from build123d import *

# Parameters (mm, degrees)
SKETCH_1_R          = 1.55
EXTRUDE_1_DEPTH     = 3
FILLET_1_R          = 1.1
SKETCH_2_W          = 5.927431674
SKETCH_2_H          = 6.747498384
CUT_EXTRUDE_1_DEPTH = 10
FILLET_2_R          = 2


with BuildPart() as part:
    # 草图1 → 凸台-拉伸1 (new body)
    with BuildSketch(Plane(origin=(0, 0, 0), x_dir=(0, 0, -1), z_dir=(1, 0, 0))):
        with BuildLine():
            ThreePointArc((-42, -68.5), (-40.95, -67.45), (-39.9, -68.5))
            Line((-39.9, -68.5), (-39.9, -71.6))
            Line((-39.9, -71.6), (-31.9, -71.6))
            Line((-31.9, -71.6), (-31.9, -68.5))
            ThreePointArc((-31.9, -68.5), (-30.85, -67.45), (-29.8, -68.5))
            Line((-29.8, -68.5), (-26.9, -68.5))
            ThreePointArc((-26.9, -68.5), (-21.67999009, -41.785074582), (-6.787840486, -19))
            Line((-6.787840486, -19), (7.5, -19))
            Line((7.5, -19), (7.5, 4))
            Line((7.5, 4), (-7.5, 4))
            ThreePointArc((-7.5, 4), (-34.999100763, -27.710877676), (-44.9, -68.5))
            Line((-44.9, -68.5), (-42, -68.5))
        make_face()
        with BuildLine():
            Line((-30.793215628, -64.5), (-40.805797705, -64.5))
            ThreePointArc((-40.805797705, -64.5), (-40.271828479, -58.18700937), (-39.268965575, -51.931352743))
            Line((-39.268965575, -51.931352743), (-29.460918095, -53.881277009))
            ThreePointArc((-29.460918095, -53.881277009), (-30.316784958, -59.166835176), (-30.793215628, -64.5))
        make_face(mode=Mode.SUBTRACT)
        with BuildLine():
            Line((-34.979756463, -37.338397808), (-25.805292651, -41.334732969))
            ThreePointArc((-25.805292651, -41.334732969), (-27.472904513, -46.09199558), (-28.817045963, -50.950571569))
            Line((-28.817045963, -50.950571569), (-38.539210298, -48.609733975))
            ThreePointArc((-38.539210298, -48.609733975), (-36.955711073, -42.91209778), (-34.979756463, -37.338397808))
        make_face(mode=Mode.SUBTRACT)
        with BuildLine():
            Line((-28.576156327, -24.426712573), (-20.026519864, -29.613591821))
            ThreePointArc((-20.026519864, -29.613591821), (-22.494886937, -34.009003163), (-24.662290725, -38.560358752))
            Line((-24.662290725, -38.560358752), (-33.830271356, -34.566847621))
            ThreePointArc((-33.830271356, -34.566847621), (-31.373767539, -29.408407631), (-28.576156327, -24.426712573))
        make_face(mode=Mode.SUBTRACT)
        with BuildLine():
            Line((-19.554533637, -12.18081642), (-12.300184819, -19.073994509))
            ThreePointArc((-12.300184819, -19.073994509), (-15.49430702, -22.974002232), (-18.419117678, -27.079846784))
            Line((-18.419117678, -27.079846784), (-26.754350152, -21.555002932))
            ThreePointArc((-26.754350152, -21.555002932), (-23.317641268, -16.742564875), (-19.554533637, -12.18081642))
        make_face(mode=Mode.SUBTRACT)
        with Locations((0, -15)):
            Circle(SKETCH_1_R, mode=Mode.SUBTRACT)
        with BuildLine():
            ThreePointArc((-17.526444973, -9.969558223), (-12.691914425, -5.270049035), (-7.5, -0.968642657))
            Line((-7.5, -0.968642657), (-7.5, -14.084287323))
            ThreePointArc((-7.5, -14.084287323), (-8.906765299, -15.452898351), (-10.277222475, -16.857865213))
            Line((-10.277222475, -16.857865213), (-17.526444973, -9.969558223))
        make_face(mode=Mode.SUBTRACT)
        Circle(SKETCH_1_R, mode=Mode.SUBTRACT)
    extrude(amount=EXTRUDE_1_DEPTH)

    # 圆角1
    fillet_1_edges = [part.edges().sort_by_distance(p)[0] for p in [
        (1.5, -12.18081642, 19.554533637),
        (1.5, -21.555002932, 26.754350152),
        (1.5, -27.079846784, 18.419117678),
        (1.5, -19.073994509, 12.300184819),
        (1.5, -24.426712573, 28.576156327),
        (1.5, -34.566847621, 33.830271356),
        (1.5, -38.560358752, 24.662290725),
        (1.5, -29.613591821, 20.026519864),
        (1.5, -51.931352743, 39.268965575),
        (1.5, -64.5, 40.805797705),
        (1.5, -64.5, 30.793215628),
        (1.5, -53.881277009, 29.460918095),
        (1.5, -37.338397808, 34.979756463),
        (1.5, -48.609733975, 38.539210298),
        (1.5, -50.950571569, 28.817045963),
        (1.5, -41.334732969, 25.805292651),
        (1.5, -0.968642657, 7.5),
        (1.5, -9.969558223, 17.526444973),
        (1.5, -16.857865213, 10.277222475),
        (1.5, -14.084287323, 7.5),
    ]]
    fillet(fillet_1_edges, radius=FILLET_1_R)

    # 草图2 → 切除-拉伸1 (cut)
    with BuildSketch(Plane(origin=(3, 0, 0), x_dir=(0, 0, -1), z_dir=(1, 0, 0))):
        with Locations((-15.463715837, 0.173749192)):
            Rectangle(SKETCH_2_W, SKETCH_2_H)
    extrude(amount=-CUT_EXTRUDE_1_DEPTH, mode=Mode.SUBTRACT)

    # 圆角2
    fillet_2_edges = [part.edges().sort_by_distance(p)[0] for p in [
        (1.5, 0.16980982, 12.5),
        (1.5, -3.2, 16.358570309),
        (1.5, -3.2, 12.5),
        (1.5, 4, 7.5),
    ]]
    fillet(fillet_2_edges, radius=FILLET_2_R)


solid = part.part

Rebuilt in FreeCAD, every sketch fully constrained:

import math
import FreeCAD as App
import Part
import Sketcher


def edges_at(feature, points):
    """Names of the edges that pass closest to the given points."""
    edges = feature.Shape.Edges
    near = lambda p: min(range(len(edges)), key=lambda i: edges[i].distToShape(Part.Vertex(*p))[0])
    return sorted({f"Edge{near(p) + 1}" for p in points})


def add_polygon(sketch, points):
    """Adds a closed chain of lines whose ends are joined by coincident constraints."""
    first, n = sketch.GeometryCount, len(points)
    for a, b in zip(points, points[1:] + points[:1]):
        sketch.addGeometry(Part.LineSegment(App.Vector(*a, 0), App.Vector(*b, 0)), False)
    for i in range(n):
        sketch.addConstraint(Sketcher.Constraint("Coincident", first + i, 2, first + (i + 1) % n, 1))

doc = App.newDocument("Part")
body = doc.addObject("PartDesign::Body", "Body")

sketch1 = body.newObject("Sketcher::SketchObject", "Sketch")
sketch1.AttachmentSupport = (doc.getObject("YZ_Plane"), [""])
sketch1.MapMode = "FlatFace"
sketch1.addGeometry([
    Part.ArcOfCircle(Part.Circle(App.Vector(-68.5, 40.95, 0), App.Vector(0, 0, 1), 1.05), math.radians(-90), math.radians(90)),
    Part.LineSegment(App.Vector(-68.5, 39.9, 0), App.Vector(-71.6, 39.9, 0)),
    Part.LineSegment(App.Vector(-71.6, 39.9, 0), App.Vector(-71.6, 31.9, 0)),
    Part.LineSegment(App.Vector(-71.6, 31.9, 0), App.Vector(-68.5, 31.9, 0)),
    Part.ArcOfCircle(Part.Circle(App.Vector(-68.5, 30.85, 0), App.Vector(0, 0, 1), 1.05), math.radians(-90), math.radians(90)),
    Part.LineSegment(App.Vector(-68.5, 29.8, 0), App.Vector(-68.5, 26.9, 0)),
    Part.ArcOfCircle(Part.Circle(App.Vector(-68.5, -44.070722, 0), App.Vector(0, 0, 1), 70.970722), math.radians(45.77557), math.radians(90)),
    Part.LineSegment(App.Vector(-19, 6.78784, 0), App.Vector(-19, -7.5, 0)),
    Part.LineSegment(App.Vector(-19, -7.5, 0), App.Vector(4, -7.5, 0)),
    Part.LineSegment(App.Vector(4, -7.5, 0), App.Vector(4, 7.5, 0)),
    Part.ArcOfCircle(Part.Circle(App.Vector(-68.5, -44.070722, 0), App.Vector(0, 0, 1), 88.970722), math.radians(35.425015), math.radians(90)),
    Part.LineSegment(App.Vector(-68.5, 44.9, 0), App.Vector(-68.5, 42, 0)),
    Part.ArcOfCircle(Part.Circle(App.Vector(-68.5, -44.070722, 0), App.Vector(0, 0, 1), 74.970722), math.radians(78.755719), math.radians(86.94158)),
    Part.LineSegment(App.Vector(-64.5, 30.793216, 0), App.Vector(-64.5, 40.805798, 0)),
    Part.ArcOfCircle(Part.Circle(App.Vector(-68.5, -44.070722, 0), App.Vector(0, 0, 1), 84.970722), math.radians(78.755719), math.radians(87.301802)),
    Part.LineSegment(App.Vector(-51.931353, 39.268966, 0), App.Vector(-53.881277, 29.460918, 0)),
    Part.ArcOfCircle(Part.Circle(App.Vector(-68.5, -44.070722, 0), App.Vector(0, 0, 1), 84.970722), math.radians(68.485702), math.radians(76.46238)),
    Part.LineSegment(App.Vector(-37.338398, 34.979756, 0), App.Vector(-41.334733, 25.805293, 0)),
    Part.ArcOfCircle(Part.Circle(App.Vector(-68.5, -44.070722, 0), App.Vector(0, 0, 1), 74.970722), math.radians(68.755719), math.radians(76.46238)),
    Part.LineSegment(App.Vector(-50.950572, 28.817046, 0), App.Vector(-48.609734, 38.53921, 0)),
    Part.ArcOfCircle(Part.Circle(App.Vector(-68.5, -44.070722, 0), App.Vector(0, 0, 1), 84.970722), math.radians(58.755719), math.radians(66.46238)),
    Part.LineSegment(App.Vector(-24.426713, 28.576156, 0), App.Vector(-29.613592, 20.02652, 0)),
    Part.ArcOfCircle(Part.Circle(App.Vector(-68.5, -44.070722, 0), App.Vector(0, 0, 1), 74.970722), math.radians(58.755719), math.radians(66.46238)),
    Part.LineSegment(App.Vector(-38.560359, 24.662291, 0), App.Vector(-34.566848, 33.830271, 0)),
    Part.ArcOfCircle(Part.Circle(App.Vector(-68.5, -44.070722, 0), App.Vector(0, 0, 1), 84.970722), math.radians(48.485702), math.radians(56.46238)),
    Part.LineSegment(App.Vector(-12.180816, 19.554534, 0), App.Vector(-19.073995, 12.300185, 0)),
    Part.ArcOfCircle(Part.Circle(App.Vector(-68.5, -44.070722, 0), App.Vector(0, 0, 1), 74.970722), math.radians(48.755719), math.radians(56.46238)),
    Part.LineSegment(App.Vector(-27.079847, 18.419118, 0), App.Vector(-21.555003, 26.75435, 0)),
    Part.Circle(App.Vector(-15, 0, 0), App.Vector(0, 0, 1), 1.55),
    Part.LineSegment(App.Vector(-16.857865, 10.277222, 0), App.Vector(-9.969558, 17.526445, 0)),
    Part.ArcOfCircle(Part.Circle(App.Vector(-68.5, -44.070722, 0), App.Vector(0, 0, 1), 84.970722), math.radians(37.367378), math.radians(46.46238)),
    Part.LineSegment(App.Vector(-0.968643, 7.5, 0), App.Vector(-14.084287, 7.5, 0)),
    Part.ArcOfCircle(Part.Circle(App.Vector(-68.5, -44.070722, 0), App.Vector(0, 0, 1), 74.970722), math.radians(43.46238), math.radians(46.46238)),
    Part.Circle(App.Vector(0, 0, 0), App.Vector(0, 0, 1), 1.55),
], False)
sketch1.addConstraint([
    Sketcher.Constraint("Tangent", 0, 1, 1, 1),
    Sketcher.Constraint("Coincident", 1, 2, 2, 1),
    Sketcher.Constraint("Coincident", 2, 2, 3, 1),
    Sketcher.Constraint("Tangent", 3, 2, 4, 2),
    Sketcher.Constraint("Coincident", 4, 1, 5, 1),
    Sketcher.Constraint("Coincident", 5, 2, 6, 2),
    Sketcher.Constraint("Coincident", 6, 1, 7, 1),
    Sketcher.Constraint("Coincident", 7, 2, 8, 1),
    Sketcher.Constraint("Coincident", 8, 2, 9, 1),
    Sketcher.Constraint("Coincident", 9, 2, 10, 1),
    Sketcher.Constraint("Coincident", 10, 2, 11, 1),
    Sketcher.Constraint("Coincident", 11, 2, 0, 2),
    Sketcher.Constraint("Coincident", 12, 2, 13, 1),
    Sketcher.Constraint("Coincident", 13, 2, 14, 2),
    Sketcher.Constraint("Coincident", 14, 1, 15, 1),
    Sketcher.Constraint("Coincident", 15, 2, 12, 1),
    Sketcher.Constraint("Coincident", 16, 1, 17, 1),
    Sketcher.Constraint("Coincident", 17, 2, 18, 1),
    Sketcher.Constraint("Coincident", 18, 2, 19, 1),
    Sketcher.Constraint("Coincident", 19, 2, 16, 2),
    Sketcher.Constraint("Coincident", 20, 1, 21, 1),
    Sketcher.Constraint("Coincident", 21, 2, 22, 1),
    Sketcher.Constraint("Coincident", 22, 2, 23, 1),
    Sketcher.Constraint("Coincident", 23, 2, 20, 2),
    Sketcher.Constraint("Coincident", 24, 1, 25, 1),
    Sketcher.Constraint("Coincident", 25, 2, 26, 1),
    Sketcher.Constraint("Coincident", 26, 2, 27, 1),
    Sketcher.Constraint("Coincident", 27, 2, 24, 2),
    Sketcher.Constraint("Coincident", 29, 2, 30, 2),
    Sketcher.Constraint("Coincident", 30, 1, 31, 1),
    Sketcher.Constraint("Coincident", 31, 2, 32, 1),
    Sketcher.Constraint("Coincident", 32, 2, 29, 1),
    Sketcher.Constraint("Horizontal", 1),
    Sketcher.Constraint("Vertical", 2),
    Sketcher.Constraint("Horizontal", 3),
    Sketcher.Constraint("Vertical", 5),
    Sketcher.Constraint("Vertical", 7),
    Sketcher.Constraint("Horizontal", 8),
    Sketcher.Constraint("Vertical", 9),
    Sketcher.Constraint("Vertical", 11),
    Sketcher.Constraint("Vertical", 13),
    Sketcher.Constraint("Horizontal", 31),
    Sketcher.Constraint("Coincident", 33, 3, -1, 1),
    Sketcher.Constraint("Coincident", 10, 3, 6, 3),
    Sketcher.Constraint("Coincident", 12, 3, 6, 3),
    Sketcher.Constraint("Coincident", 14, 3, 6, 3),
    Sketcher.Constraint("Coincident", 16, 3, 6, 3),
    Sketcher.Constraint("Coincident", 18, 3, 6, 3),
    Sketcher.Constraint("Coincident", 20, 3, 6, 3),
    Sketcher.Constraint("Coincident", 22, 3, 6, 3),
    Sketcher.Constraint("Coincident", 24, 3, 6, 3),
    Sketcher.Constraint("Coincident", 26, 3, 6, 3),
    Sketcher.Constraint("Coincident", 30, 3, 6, 3),
    Sketcher.Constraint("Coincident", 32, 3, 6, 3),
    Sketcher.Constraint("Equal", 0, 4),
    Sketcher.Constraint("Equal", 14, 16),
    Sketcher.Constraint("Equal", 12, 18),
    Sketcher.Constraint("Equal", 16, 20),
    Sketcher.Constraint("Equal", 18, 22),
    Sketcher.Constraint("Equal", 20, 24),
    Sketcher.Constraint("Equal", 22, 26),
    Sketcher.Constraint("Equal", 24, 30),
    Sketcher.Constraint("Equal", 26, 32),
    Sketcher.Constraint("Equal", 28, 33),
    Sketcher.Constraint("PointOnObject", 28, 3, -1),
    Sketcher.Constraint("Parallel", 17, 23),
    Sketcher.Constraint("Parallel", 25, 29),
    Sketcher.Constraint("Horizontal", 9, 2, 30, 1),
    Sketcher.Constraint("Vertical", 0, 3, 4, 3),
    Sketcher.Constraint("Vertical", 4, 3, 6, 3),
    Sketcher.Constraint("Vertical", 3, 2, 4, 1),
    Sketcher.Constraint("Vertical", 5, 2, 10, 2),
    Sketcher.Constraint("Equal", 5, 11),
    Sketcher.Constraint("Equal", 17, 25),
    Sketcher.Constraint("Diameter", 28, 3.1),
    Sketcher.Constraint("DistanceX", 8, 1, 8, 2, 23.0),
    Sketcher.Constraint("DistanceY", 2, 2, 2, 1, 8.0),
    Sketcher.Constraint("DistanceY", 9, 1, 9, 2, 15.0),
    Sketcher.Constraint("Radius", 0, 1.05),
    Sketcher.Constraint("Distance", 15, 10.0),
    Sketcher.Constraint("DistanceX", 1, 2, 1, 1, 3.1),
    Sketcher.Constraint("DistanceY", 5, 2, 5, 1, 2.9),
    Sketcher.Constraint("DistanceX", 28, 3, -1, 1, 15.0),
    Sketcher.Constraint("DistanceX", 6, 1, -1, 1, 19.0),
    Sketcher.Constraint("DistanceY", -1, 1, 11, 2, 42.0),
    Sketcher.Constraint("DistanceX", 4, 3, 12, 2, 4.0),
    Sketcher.Constraint("DistanceX", 0, 3, -1, 1, 68.5),
    Sketcher.Constraint("DistanceY", 7, 2, -1, 1, 7.5),
    Sketcher.Constraint("Radius", 12, 74.970722),
    Sketcher.Constraint("DistanceX", 19, 2, 17, 2, 7.275001),
    Sketcher.Constraint("DistanceY", 22, 2, 17, 2, 1.143002),
    Sketcher.Constraint("DistanceY", 20, 1, 16, 1, 6.4036),
    Sketcher.Constraint("Distance", 17, 10.007072),
    Sketcher.Constraint("DistanceY", -1, 1, 15, 2, 29.460918),
    Sketcher.Constraint("DistanceX", 18, 2, -1, 1, 50.950572),
    Sketcher.Constraint("DistanceY", -1, 1, 19, 2, 38.53921),
    Sketcher.Constraint("DistanceX", 21, 2, -1, 1, 29.613592),
    Sketcher.Constraint("DistanceY", -1, 1, 27, 2, 26.75435),
    Sketcher.Constraint("DistanceX", 29, 2, -1, 1, 9.969558),
    Sketcher.Constraint("DistanceY", 12, 2, 14, 1, 8.47575),
    Sketcher.Constraint("DistanceX", 20, 1, 25, 2, 5.352718),
    Sketcher.Constraint("DistanceY", 26, 2, 20, 1, 10.157039),
])
pad1 = body.newObject("PartDesign::Pad", "Pad")
pad1.Profile = sketch1
pad1.Length = 3
doc.recompute()

fillet = body.newObject("PartDesign::Fillet", "Fillet")
fillet.Base = (pad1, edges_at(pad1, [
    (1.5, -12.181, 19.555),
    (1.5, -21.555, 26.754),
    (1.5, -27.08, 18.419),
    (1.5, -19.074, 12.3),
    (1.5, -24.427, 28.576),
    (1.5, -34.567, 33.83),
    (1.5, -38.56, 24.662),
    (1.5, -29.614, 20.027),
    (1.5, -51.931, 39.269),
    (1.5, -64.5, 40.806),
    (1.5, -64.5, 30.793),
    (1.5, -53.881, 29.461),
    (1.5, -37.338, 34.98),
    (1.5, -48.61, 38.539),
    (1.5, -50.951, 28.817),
    (1.5, -41.335, 25.805),
    (1.5, -0.969, 7.5),
    (1.5, -9.97, 17.526),
    (1.5, -16.858, 10.277),
    (1.5, -14.084, 7.5),
]))
fillet.Radius = 1.1

sketch2 = body.newObject("Sketcher::SketchObject", "Sketch001")
sketch2.AttachmentSupport = (doc.getObject("YZ_Plane"), [""])
sketch2.MapMode = "FlatFace"
sketch2.AttachmentOffset = App.Placement(App.Vector(0, 0, 3), App.Rotation())
add_polygon(sketch2, [(3.547498, 18.427432), (-3.2, 18.427432), (-3.2, 12.5), (3.547498, 12.5)])
sketch2.addConstraint([
    Sketcher.Constraint("Horizontal", 0),
    Sketcher.Constraint("Vertical", 1),
    Sketcher.Constraint("Horizontal", 2),
    Sketcher.Constraint("Vertical", 3),
    Sketcher.Constraint("DistanceX", 0, 2, -1, 1, 3.2),
    Sketcher.Constraint("DistanceY", -1, 1, 1, 2, 12.5),
    Sketcher.Constraint("DistanceX", 0, 2, 0, 1, 6.747498),
    Sketcher.Constraint("DistanceY", 1, 2, 1, 1, 5.927432),
])
pocket1 = body.newObject("PartDesign::Pocket", "Pocket")
pocket1.Profile = sketch2
pocket1.Length = 10
doc.recompute()

fillet2 = body.newObject("PartDesign::Fillet", "Fillet001")
fillet2.Base = (pocket1, edges_at(pocket1, [
    (1.5, 0.17, 12.5),
    (1.5, -3.2, 16.359),
    (1.5, -3.2, 12.5),
    (1.5, 4, 7.5),
]))
fillet2.Radius = 2

doc.recompute()
